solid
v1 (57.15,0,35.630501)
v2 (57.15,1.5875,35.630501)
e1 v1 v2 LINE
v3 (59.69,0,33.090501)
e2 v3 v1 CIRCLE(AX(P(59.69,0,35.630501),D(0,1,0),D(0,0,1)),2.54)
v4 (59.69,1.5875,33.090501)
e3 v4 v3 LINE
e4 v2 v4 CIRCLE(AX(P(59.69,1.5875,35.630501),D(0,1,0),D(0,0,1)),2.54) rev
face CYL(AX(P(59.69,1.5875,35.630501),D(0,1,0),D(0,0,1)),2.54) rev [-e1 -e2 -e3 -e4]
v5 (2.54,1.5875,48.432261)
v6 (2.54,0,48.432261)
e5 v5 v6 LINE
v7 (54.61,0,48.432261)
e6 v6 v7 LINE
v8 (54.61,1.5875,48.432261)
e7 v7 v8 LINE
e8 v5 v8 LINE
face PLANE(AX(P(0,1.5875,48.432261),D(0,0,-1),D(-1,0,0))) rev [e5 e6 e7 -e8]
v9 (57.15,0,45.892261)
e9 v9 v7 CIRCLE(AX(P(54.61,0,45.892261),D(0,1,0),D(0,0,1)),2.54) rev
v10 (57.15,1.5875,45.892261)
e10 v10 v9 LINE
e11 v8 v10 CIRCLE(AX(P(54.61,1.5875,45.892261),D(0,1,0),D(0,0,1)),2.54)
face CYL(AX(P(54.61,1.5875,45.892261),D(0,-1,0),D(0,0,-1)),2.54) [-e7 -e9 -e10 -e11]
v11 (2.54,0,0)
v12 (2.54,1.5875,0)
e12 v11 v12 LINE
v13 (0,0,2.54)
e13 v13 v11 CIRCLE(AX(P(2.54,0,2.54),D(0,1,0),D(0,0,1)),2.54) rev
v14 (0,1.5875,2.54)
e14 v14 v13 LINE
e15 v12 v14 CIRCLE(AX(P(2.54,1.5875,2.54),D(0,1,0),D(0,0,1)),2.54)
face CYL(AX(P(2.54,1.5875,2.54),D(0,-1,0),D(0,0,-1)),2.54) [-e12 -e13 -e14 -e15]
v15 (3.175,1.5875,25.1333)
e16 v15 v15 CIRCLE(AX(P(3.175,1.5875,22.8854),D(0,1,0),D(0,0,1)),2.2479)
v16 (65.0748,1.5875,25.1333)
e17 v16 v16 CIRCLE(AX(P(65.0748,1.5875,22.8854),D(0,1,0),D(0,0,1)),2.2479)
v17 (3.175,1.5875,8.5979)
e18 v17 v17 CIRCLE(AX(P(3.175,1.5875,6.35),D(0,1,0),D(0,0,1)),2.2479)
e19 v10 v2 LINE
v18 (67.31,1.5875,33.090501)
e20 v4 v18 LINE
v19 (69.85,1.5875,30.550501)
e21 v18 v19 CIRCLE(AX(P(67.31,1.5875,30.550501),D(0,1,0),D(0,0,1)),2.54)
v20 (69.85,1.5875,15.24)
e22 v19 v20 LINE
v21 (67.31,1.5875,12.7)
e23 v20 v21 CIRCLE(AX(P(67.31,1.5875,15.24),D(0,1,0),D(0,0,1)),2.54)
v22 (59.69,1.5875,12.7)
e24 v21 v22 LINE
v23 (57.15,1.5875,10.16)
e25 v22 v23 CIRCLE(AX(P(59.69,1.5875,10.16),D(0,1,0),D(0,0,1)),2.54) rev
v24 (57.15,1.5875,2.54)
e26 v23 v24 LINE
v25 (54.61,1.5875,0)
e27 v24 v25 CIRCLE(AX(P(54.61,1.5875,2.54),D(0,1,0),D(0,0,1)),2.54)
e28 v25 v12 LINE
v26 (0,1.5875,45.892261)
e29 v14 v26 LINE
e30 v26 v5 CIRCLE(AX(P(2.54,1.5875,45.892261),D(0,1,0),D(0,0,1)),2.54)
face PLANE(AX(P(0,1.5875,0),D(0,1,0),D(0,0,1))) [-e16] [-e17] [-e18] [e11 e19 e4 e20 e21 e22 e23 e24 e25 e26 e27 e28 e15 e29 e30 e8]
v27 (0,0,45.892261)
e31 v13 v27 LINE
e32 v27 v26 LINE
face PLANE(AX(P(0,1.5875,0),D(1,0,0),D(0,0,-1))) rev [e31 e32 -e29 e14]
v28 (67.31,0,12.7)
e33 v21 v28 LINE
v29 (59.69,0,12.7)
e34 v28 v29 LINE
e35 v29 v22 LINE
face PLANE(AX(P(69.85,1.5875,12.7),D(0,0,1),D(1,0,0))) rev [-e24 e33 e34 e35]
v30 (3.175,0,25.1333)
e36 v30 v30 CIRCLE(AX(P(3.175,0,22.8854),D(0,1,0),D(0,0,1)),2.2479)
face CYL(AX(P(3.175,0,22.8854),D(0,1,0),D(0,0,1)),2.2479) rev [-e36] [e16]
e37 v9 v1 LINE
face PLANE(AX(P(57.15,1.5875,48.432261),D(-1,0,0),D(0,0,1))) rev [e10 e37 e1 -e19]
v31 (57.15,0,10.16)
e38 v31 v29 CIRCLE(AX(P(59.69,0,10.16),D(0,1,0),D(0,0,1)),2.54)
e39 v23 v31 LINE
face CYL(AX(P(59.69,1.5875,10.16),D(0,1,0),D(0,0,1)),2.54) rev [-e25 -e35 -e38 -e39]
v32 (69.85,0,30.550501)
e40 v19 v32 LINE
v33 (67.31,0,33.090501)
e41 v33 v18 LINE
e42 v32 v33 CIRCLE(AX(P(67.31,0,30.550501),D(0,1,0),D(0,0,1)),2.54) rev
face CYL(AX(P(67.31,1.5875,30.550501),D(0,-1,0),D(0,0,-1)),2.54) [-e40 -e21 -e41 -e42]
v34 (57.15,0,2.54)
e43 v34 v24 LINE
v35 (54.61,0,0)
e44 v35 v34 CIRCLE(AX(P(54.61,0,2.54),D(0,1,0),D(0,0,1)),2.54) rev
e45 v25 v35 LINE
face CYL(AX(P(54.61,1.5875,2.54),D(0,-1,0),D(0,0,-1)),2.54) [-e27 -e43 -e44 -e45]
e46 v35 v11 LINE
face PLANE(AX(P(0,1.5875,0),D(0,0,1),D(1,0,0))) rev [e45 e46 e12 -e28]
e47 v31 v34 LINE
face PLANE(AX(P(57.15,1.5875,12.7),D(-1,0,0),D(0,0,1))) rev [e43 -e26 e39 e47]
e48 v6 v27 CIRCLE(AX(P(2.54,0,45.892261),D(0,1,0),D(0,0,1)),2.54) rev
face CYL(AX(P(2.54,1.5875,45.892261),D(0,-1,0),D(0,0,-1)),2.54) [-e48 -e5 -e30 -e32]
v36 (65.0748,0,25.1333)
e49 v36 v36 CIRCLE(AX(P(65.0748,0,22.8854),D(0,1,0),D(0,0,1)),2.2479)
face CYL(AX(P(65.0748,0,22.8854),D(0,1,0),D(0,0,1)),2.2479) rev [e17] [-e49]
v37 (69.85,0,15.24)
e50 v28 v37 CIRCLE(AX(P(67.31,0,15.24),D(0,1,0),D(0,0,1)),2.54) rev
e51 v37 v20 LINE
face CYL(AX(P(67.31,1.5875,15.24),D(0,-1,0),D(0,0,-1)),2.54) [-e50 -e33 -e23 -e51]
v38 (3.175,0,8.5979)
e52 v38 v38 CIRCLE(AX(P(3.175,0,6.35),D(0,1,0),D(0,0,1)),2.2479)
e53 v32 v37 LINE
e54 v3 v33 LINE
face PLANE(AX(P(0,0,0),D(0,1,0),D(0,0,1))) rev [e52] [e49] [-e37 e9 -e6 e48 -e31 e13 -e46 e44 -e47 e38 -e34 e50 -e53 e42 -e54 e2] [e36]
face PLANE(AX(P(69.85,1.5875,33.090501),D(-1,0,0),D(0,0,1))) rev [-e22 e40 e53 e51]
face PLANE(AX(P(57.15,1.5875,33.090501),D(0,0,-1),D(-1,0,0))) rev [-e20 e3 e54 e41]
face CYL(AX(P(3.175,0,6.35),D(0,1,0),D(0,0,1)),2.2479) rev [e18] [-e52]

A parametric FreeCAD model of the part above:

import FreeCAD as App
import Part
import Sketcher
Q = App.Units.Quantity


def edges_at(feature, points):
    """Names of the edges that pass closest to the given points."""
    edges = feature.Shape.Edges
    near = lambda p: min(range(len(edges)), key=lambda i: edges[i].distToShape(Part.Vertex(*p))[0])
    return sorted({f"Edge{near(p) + 1}" for p in points})


def add_polygon(sketch, points):
    """Adds a closed chain of lines whose ends are joined by coincident constraints."""
    first, n = sketch.GeometryCount, len(points)
    for a, b in zip(points, points[1:] + points[:1]):
        sketch.addGeometry(Part.LineSegment(App.Vector(*a, 0), App.Vector(*b, 0)), False)
    for i in range(n):
        sketch.addConstraint(Sketcher.Constraint("Coincident", first + i, 2, first + (i + 1) % n, 1))

doc = App.newDocument("Part")
params = doc.addObject("Spreadsheet::Sheet", "Params")
for row, (alias, value) in enumerate([
    ("sketch1_width", "0.5 in"),
    ("sketch1_width2", "2.25 in"),
    ("pad1_length", "0.0625 in"),
    ("fillet_radius", "0.1 in"),
    ("sketch2_diameter", "0.177 in"),
], start=1):
    params.set(f"A{row}", alias)
    params.set(f"B{row}", "=" + value)
    params.setAlias(f"B{row}", alias)

body = doc.addObject("PartDesign::Body", "Body")

# Sketch on XZ plane
sketch1 = body.newObject("Sketcher::SketchObject", "Sketch")
sketch1.AttachmentSupport = (doc.getObject("XZ_Plane"), [""])
sketch1.MapMode = "FlatFace"
add_polygon(sketch1, [(0, 0), (0, 48.432261), (57.15, 48.432261), (57.15, 33.090501), (69.85, 33.090501), (69.85, 12.7), (57.15, 12.7), (57.15, 0)])  # lines 0-7
sketch1.addConstraint(Sketcher.Constraint("Vertical", 0))
sketch1.addConstraint(Sketcher.Constraint("Horizontal", 1))
sketch1.addConstraint(Sketcher.Constraint("Vertical", 2))
sketch1.addConstraint(Sketcher.Constraint("Horizontal", 3))
sketch1.addConstraint(Sketcher.Constraint("Vertical", 4))
sketch1.addConstraint(Sketcher.Constraint("Horizontal", 5))
sketch1.addConstraint(Sketcher.Constraint("Vertical", 6))
sketch1.addConstraint(Sketcher.Constraint("Horizontal", 7))
sketch1.addConstraint(Sketcher.Constraint("Coincident", 7, 2, -1, 1))
sketch1.addConstraint(Sketcher.Constraint("Vertical", 2, 2, 5, 2))
sketch1.addConstraint(Sketcher.Constraint("Equal", 5, 6))
sketch1.addConstraint(Sketcher.Constraint("DistanceX", 3, 1, 3, 2, Q("0.5 in")))
sketch1.addConstraint(Sketcher.Constraint("DistanceX", 1, 1, 1, 2, Q("2.25 in")))
sketch1.addConstraint(Sketcher.Constraint("DistanceY", 4, 2, 4, 1, 20.390501))
sketch1.addConstraint(Sketcher.Constraint("DistanceY", 0, 1, 0, 2, 48.432261))
sketch1.setExpression("Constraints[19]", "Params.sketch1_width")
sketch1.setExpression("Constraints[20]", "Params.sketch1_width2")
pad1 = body.newObject("PartDesign::Pad", "Pad")
pad1.Profile = sketch1
pad1.setExpression("Length", "Params.pad1_length")
pad1.Reversed = True
doc.recompute()

fillet = body.newObject("PartDesign::Fillet", "Fillet")
fillet.Base = (pad1, edges_at(pad1, [
    (57.15, 0.794, 0),
    (57.15, 0.794, 12.7),
    (69.85, 0.794, 12.7),
    (69.85, 0.794, 33.091),
    (57.15, 0.794, 33.091),
    (57.15, 0.794, 48.432),
    (0, 0.794, 48.432),
    (0, 0.794, 0),
]))
fillet.setExpression("Radius", "Params.fillet_radius")

# Sketch on XZ plane
sketch2 = body.newObject("Sketcher::SketchObject", "Sketch001")
sketch2.AttachmentSupport = (doc.getObject("XZ_Plane"), [""])
sketch2.MapMode = "FlatFace"
sketch2.AttachmentOffset = App.Placement(App.Vector(0, 0, -0.0625 * 25.4), App.Rotation())
sketch2.addGeometry(Part.Circle(App.Vector(3.175, 6.35, 0), App.Vector(0, 0, 1), 2.2479), False)
sketch2.addGeometry(Part.Circle(App.Vector(3.175, 22.8854, 0), App.Vector(0, 0, 1), 2.2479), False)
sketch2.addGeometry(Part.Circle(App.Vector(65.0748, 22.8854, 0), App.Vector(0, 0, 1), 2.2479), False)
sketch2.addConstraint(Sketcher.Constraint("Equal", 0, 1))
sketch2.addConstraint(Sketcher.Constraint("Equal", 1, 2))
sketch2.addConstraint(Sketcher.Constraint("Horizontal", 1, 3, 2, 3))
sketch2.addConstraint(Sketcher.Constraint("Vertical", 0, 3, 1, 3))
sketch2.addConstraint(Sketcher.Constraint("Diameter", 0, Q("0.177 in")))
sketch2.addConstraint(Sketcher.Constraint("DistanceY", -1, 1, 0, 3, Q("0.25 in")))
sketch2.addConstraint(Sketcher.Constraint("DistanceX", -1, 1, 0, 3, Q("0.125 in")))
sketch2.addConstraint(Sketcher.Constraint("DistanceY", -1, 1, 1, 3, Q("0.901 in")))
sketch2.addConstraint(Sketcher.Constraint("DistanceX", -1, 1, 2, 3, Q("2.562 in")))
sketch2.setExpression("Constraints[4]", "Params.sketch2_diameter")
pocket1 = body.newObject("PartDesign::Pocket", "Pocket")
pocket1.Profile = sketch2
pocket1.Type = "ThroughAll"
pocket1.Reversed = True

doc.recompute()
